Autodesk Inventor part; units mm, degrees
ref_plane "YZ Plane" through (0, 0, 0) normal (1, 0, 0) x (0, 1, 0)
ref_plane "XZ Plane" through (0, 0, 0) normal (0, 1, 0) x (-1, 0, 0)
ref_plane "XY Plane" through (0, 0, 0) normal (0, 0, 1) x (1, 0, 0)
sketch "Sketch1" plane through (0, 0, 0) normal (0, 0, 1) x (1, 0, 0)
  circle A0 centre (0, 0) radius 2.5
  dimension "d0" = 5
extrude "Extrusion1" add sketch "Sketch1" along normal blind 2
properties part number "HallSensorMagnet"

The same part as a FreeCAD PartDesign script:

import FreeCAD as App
import Part
import Sketcher

V = App.Vector
Q = App.Units.Quantity

doc = App.newDocument("Part")
params = doc.addObject("Spreadsheet::Sheet", "Params")
for row, (alias, value) in enumerate([
    ("sketch1_diameter", "5 mm"),
    ("pad1_length", "2 mm"),
], start=1):
    params.set(f"A{row}", alias)
    params.set(f"B{row}", "=" + value)
    params.setAlias(f"B{row}", alias)

body = doc.addObject("PartDesign::Body", "Body")

sketch1 = body.newObject("Sketcher::SketchObject", "Sketch")
sketch1.AttachmentSupport = (doc.getObject("XY_Plane"), [""])
sketch1.MapMode = "FlatFace"
sketch1.addGeometry(Part.Circle(V(0, 0, 0), V(0, 0, 1), 2.5), False)
sketch1.addConstraint([
    Sketcher.Constraint("Coincident", 0, 3, -1, 1),
    Sketcher.Constraint("Diameter", 0, Q("5 mm")),
])
sketch1.setExpression("Constraints[1]", "Params.sketch1_diameter")
pad1 = body.newObject("PartDesign::Pad", "Pad")
pad1.Profile = sketch1
pad1.setExpression("Length", "Params.pad1_length")

doc.recompute()
